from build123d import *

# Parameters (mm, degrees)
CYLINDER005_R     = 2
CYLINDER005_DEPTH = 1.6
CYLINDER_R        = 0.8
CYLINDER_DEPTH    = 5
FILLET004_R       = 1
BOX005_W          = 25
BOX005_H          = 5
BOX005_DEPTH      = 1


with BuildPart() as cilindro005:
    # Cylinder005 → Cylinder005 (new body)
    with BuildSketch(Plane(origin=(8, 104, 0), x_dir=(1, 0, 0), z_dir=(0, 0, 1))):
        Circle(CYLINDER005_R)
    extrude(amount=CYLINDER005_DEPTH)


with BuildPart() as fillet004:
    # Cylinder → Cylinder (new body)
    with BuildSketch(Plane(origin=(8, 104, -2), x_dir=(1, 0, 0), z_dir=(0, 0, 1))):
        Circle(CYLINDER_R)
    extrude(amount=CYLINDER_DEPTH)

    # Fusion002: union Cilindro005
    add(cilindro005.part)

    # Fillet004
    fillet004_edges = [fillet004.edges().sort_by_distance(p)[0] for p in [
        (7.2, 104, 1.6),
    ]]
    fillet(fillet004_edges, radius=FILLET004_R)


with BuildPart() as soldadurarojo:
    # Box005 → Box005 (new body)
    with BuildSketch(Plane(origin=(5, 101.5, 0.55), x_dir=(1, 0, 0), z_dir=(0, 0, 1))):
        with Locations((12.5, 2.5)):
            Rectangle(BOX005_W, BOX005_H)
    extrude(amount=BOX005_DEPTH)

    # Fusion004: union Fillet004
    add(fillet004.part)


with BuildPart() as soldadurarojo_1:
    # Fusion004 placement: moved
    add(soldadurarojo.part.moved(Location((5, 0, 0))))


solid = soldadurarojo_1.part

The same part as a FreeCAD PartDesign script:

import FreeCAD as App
import Part
import Sketcher
from FreeCAD import Vector


def edges_at(feature, points):
    """Names of the edges that pass closest to the given points."""
    edges = feature.Shape.Edges
    near = lambda p: min(range(len(edges)), key=lambda i: edges[i].distToShape(Part.Vertex(*p))[0])
    return sorted({f"Edge{near(p) + 1}" for p in points})

doc = App.newDocument("Part")
params = doc.addObject("Spreadsheet::Sheet", "Params")
for row, (alias, value) in enumerate([
    ("sketch1_diameter", "4 mm"),
    ("pad1_length", "1.6 mm"),
    ("sketch2_diameter", "1.6 mm"),
    ("pad2_length", "5 mm"),
    ("fillet_radius", "1 mm"),
    ("sketch3_width", "25 mm"),
    ("sketch3_height", "5 mm"),
    ("pad3_length", "1 mm"),
], start=1):
    params.set(f"A{row}", alias)
    params.set(f"B{row}", "=" + value)
    params.setAlias(f"B{row}", alias)

body = doc.addObject("PartDesign::Body", "Body")

# Sketch on XY plane
sketch1 = body.newObject("Sketcher::SketchObject", "Sketch")
sketch1.AttachmentSupport = (doc.getObject("XY_Plane"), [""])
sketch1.MapMode = "FlatFace"
sketch1.addGeometry(Part.Circle(Vector(8, 104, 0), Vector(0, 0, 1), 2), False)
sketch1.addConstraint([
    Sketcher.Constraint("Diameter", 0, 4.0),
    Sketcher.Constraint("DistanceX", -1, 1, 0, 3, 8.0),
    Sketcher.Constraint("DistanceY", -1, 1, 0, 3, 104.0),
])
sketch1.setExpression("Constraints[0]", "Params.sketch1_diameter")
pad1 = body.newObject("PartDesign::Pad", "Pad")
pad1.Profile = sketch1
pad1.setExpression("Length", "Params.pad1_length")
body2 = doc.addObject("PartDesign::Body", "Body001")

# Sketch on XY plane
sketch2 = body2.newObject("Sketcher::SketchObject", "Sketch001")
sketch2.AttachmentSupport = (doc.getObject("XY_Plane001"), [""])
sketch2.MapMode = "FlatFace"
sketch2.AttachmentOffset = App.Placement(Vector(0, 0, -2), App.Rotation())
sketch2.addGeometry(Part.Circle(Vector(8, 104, 0), Vector(0, 0, 1), 0.8), False)
sketch2.addConstraint([
    Sketcher.Constraint("Diameter", 0, 1.6),
    Sketcher.Constraint("DistanceX", -1, 1, 0, 3, 8.0),
    Sketcher.Constraint("DistanceY", -1, 1, 0, 3, 104.0),
])
sketch2.setExpression("Constraints[0]", "Params.sketch2_diameter")
pad2 = body2.newObject("PartDesign::Pad", "Pad001")
pad2.Profile = sketch2
pad2.setExpression("Length", "Params.pad2_length")
doc.recompute()

boolean = body2.newObject("PartDesign::Boolean", "Boolean")
boolean.Type = "Fuse"
boolean.addObjects([body])
doc.recompute()

fillet = body2.newObject("PartDesign::Fillet", "Fillet")
fillet.Base = (boolean, edges_at(boolean, [(7.2, 104, 1.6)]))
fillet.setExpression("Radius", "Params.fillet_radius")
body3 = doc.addObject("PartDesign::Body", "Body002")

# Sketch on XY plane
sketch3 = body3.newObject("Sketcher::SketchObject", "Sketch002")
sketch3.AttachmentSupport = (doc.getObject("XY_Plane002"), [""])
sketch3.MapMode = "FlatFace"
sketch3.AttachmentOffset = App.Placement(Vector(0, 0, 0.55), App.Rotation())
sketch3.addGeometry([
    Part.LineSegment(Vector(5, 106, 0), Vector(5, 102, 0)),
    Part.LineSegment(Vector(5, 102, 0), Vector(30, 102, 0)),
    Part.LineSegment(Vector(30, 102, 0), Vector(30, 106, 0)),
    Part.LineSegment(Vector(30, 106, 0), Vector(5, 106, 0)),
], False)
sketch3.addConstraint([
    Sketcher.Constraint("Coincident", 0, 2, 1, 1),
    Sketcher.Constraint("Coincident", 1, 2, 2, 1),
    Sketcher.Constraint("Coincident", 2, 2, 3, 1),
    Sketcher.Constraint("Coincident", 3, 2, 0, 1),
    Sketcher.Constraint("Vertical", 0),
    Sketcher.Constraint("Horizontal", 1),
    Sketcher.Constraint("Vertical", 2),
    Sketcher.Constraint("Horizontal", 3),
    Sketcher.Constraint("DistanceX", 1, 1, 1, 2, 25.0),
    Sketcher.Constraint("DistanceY", 0, 2, 0, 1, 5.0),
    Sketcher.Constraint("DistanceX", -1, 1, 0, 2, 5.0),
    Sketcher.Constraint("DistanceY", -1, 1, 0, 2, 101.5),
])
sketch3.setExpression("Constraints[8]", "Params.sketch3_width")
sketch3.setExpression("Constraints[9]", "Params.sketch3_height")
pad3 = body3.newObject("PartDesign::Pad", "Pad002")
pad3.Profile = sketch3
pad3.setExpression("Length", "Params.pad3_length")
doc.recompute()

boolean2 = body3.newObject("PartDesign::Boolean", "Boolean001")
boolean2.Type = "Fuse"
boolean2.addObjects([body2])
body4 = doc.addObject("PartDesign::Body", "Body003")
doc.recompute()

body3.Placement = App.Placement(Vector(5, 0, 0), App.Rotation(Vector(0, 0, 1), 0))
boolean3 = body4.newObject("PartDesign::Boolean", "Boolean002")
boolean3.Type = "Fuse"
boolean3.addObjects([body3])

doc.recompute()
